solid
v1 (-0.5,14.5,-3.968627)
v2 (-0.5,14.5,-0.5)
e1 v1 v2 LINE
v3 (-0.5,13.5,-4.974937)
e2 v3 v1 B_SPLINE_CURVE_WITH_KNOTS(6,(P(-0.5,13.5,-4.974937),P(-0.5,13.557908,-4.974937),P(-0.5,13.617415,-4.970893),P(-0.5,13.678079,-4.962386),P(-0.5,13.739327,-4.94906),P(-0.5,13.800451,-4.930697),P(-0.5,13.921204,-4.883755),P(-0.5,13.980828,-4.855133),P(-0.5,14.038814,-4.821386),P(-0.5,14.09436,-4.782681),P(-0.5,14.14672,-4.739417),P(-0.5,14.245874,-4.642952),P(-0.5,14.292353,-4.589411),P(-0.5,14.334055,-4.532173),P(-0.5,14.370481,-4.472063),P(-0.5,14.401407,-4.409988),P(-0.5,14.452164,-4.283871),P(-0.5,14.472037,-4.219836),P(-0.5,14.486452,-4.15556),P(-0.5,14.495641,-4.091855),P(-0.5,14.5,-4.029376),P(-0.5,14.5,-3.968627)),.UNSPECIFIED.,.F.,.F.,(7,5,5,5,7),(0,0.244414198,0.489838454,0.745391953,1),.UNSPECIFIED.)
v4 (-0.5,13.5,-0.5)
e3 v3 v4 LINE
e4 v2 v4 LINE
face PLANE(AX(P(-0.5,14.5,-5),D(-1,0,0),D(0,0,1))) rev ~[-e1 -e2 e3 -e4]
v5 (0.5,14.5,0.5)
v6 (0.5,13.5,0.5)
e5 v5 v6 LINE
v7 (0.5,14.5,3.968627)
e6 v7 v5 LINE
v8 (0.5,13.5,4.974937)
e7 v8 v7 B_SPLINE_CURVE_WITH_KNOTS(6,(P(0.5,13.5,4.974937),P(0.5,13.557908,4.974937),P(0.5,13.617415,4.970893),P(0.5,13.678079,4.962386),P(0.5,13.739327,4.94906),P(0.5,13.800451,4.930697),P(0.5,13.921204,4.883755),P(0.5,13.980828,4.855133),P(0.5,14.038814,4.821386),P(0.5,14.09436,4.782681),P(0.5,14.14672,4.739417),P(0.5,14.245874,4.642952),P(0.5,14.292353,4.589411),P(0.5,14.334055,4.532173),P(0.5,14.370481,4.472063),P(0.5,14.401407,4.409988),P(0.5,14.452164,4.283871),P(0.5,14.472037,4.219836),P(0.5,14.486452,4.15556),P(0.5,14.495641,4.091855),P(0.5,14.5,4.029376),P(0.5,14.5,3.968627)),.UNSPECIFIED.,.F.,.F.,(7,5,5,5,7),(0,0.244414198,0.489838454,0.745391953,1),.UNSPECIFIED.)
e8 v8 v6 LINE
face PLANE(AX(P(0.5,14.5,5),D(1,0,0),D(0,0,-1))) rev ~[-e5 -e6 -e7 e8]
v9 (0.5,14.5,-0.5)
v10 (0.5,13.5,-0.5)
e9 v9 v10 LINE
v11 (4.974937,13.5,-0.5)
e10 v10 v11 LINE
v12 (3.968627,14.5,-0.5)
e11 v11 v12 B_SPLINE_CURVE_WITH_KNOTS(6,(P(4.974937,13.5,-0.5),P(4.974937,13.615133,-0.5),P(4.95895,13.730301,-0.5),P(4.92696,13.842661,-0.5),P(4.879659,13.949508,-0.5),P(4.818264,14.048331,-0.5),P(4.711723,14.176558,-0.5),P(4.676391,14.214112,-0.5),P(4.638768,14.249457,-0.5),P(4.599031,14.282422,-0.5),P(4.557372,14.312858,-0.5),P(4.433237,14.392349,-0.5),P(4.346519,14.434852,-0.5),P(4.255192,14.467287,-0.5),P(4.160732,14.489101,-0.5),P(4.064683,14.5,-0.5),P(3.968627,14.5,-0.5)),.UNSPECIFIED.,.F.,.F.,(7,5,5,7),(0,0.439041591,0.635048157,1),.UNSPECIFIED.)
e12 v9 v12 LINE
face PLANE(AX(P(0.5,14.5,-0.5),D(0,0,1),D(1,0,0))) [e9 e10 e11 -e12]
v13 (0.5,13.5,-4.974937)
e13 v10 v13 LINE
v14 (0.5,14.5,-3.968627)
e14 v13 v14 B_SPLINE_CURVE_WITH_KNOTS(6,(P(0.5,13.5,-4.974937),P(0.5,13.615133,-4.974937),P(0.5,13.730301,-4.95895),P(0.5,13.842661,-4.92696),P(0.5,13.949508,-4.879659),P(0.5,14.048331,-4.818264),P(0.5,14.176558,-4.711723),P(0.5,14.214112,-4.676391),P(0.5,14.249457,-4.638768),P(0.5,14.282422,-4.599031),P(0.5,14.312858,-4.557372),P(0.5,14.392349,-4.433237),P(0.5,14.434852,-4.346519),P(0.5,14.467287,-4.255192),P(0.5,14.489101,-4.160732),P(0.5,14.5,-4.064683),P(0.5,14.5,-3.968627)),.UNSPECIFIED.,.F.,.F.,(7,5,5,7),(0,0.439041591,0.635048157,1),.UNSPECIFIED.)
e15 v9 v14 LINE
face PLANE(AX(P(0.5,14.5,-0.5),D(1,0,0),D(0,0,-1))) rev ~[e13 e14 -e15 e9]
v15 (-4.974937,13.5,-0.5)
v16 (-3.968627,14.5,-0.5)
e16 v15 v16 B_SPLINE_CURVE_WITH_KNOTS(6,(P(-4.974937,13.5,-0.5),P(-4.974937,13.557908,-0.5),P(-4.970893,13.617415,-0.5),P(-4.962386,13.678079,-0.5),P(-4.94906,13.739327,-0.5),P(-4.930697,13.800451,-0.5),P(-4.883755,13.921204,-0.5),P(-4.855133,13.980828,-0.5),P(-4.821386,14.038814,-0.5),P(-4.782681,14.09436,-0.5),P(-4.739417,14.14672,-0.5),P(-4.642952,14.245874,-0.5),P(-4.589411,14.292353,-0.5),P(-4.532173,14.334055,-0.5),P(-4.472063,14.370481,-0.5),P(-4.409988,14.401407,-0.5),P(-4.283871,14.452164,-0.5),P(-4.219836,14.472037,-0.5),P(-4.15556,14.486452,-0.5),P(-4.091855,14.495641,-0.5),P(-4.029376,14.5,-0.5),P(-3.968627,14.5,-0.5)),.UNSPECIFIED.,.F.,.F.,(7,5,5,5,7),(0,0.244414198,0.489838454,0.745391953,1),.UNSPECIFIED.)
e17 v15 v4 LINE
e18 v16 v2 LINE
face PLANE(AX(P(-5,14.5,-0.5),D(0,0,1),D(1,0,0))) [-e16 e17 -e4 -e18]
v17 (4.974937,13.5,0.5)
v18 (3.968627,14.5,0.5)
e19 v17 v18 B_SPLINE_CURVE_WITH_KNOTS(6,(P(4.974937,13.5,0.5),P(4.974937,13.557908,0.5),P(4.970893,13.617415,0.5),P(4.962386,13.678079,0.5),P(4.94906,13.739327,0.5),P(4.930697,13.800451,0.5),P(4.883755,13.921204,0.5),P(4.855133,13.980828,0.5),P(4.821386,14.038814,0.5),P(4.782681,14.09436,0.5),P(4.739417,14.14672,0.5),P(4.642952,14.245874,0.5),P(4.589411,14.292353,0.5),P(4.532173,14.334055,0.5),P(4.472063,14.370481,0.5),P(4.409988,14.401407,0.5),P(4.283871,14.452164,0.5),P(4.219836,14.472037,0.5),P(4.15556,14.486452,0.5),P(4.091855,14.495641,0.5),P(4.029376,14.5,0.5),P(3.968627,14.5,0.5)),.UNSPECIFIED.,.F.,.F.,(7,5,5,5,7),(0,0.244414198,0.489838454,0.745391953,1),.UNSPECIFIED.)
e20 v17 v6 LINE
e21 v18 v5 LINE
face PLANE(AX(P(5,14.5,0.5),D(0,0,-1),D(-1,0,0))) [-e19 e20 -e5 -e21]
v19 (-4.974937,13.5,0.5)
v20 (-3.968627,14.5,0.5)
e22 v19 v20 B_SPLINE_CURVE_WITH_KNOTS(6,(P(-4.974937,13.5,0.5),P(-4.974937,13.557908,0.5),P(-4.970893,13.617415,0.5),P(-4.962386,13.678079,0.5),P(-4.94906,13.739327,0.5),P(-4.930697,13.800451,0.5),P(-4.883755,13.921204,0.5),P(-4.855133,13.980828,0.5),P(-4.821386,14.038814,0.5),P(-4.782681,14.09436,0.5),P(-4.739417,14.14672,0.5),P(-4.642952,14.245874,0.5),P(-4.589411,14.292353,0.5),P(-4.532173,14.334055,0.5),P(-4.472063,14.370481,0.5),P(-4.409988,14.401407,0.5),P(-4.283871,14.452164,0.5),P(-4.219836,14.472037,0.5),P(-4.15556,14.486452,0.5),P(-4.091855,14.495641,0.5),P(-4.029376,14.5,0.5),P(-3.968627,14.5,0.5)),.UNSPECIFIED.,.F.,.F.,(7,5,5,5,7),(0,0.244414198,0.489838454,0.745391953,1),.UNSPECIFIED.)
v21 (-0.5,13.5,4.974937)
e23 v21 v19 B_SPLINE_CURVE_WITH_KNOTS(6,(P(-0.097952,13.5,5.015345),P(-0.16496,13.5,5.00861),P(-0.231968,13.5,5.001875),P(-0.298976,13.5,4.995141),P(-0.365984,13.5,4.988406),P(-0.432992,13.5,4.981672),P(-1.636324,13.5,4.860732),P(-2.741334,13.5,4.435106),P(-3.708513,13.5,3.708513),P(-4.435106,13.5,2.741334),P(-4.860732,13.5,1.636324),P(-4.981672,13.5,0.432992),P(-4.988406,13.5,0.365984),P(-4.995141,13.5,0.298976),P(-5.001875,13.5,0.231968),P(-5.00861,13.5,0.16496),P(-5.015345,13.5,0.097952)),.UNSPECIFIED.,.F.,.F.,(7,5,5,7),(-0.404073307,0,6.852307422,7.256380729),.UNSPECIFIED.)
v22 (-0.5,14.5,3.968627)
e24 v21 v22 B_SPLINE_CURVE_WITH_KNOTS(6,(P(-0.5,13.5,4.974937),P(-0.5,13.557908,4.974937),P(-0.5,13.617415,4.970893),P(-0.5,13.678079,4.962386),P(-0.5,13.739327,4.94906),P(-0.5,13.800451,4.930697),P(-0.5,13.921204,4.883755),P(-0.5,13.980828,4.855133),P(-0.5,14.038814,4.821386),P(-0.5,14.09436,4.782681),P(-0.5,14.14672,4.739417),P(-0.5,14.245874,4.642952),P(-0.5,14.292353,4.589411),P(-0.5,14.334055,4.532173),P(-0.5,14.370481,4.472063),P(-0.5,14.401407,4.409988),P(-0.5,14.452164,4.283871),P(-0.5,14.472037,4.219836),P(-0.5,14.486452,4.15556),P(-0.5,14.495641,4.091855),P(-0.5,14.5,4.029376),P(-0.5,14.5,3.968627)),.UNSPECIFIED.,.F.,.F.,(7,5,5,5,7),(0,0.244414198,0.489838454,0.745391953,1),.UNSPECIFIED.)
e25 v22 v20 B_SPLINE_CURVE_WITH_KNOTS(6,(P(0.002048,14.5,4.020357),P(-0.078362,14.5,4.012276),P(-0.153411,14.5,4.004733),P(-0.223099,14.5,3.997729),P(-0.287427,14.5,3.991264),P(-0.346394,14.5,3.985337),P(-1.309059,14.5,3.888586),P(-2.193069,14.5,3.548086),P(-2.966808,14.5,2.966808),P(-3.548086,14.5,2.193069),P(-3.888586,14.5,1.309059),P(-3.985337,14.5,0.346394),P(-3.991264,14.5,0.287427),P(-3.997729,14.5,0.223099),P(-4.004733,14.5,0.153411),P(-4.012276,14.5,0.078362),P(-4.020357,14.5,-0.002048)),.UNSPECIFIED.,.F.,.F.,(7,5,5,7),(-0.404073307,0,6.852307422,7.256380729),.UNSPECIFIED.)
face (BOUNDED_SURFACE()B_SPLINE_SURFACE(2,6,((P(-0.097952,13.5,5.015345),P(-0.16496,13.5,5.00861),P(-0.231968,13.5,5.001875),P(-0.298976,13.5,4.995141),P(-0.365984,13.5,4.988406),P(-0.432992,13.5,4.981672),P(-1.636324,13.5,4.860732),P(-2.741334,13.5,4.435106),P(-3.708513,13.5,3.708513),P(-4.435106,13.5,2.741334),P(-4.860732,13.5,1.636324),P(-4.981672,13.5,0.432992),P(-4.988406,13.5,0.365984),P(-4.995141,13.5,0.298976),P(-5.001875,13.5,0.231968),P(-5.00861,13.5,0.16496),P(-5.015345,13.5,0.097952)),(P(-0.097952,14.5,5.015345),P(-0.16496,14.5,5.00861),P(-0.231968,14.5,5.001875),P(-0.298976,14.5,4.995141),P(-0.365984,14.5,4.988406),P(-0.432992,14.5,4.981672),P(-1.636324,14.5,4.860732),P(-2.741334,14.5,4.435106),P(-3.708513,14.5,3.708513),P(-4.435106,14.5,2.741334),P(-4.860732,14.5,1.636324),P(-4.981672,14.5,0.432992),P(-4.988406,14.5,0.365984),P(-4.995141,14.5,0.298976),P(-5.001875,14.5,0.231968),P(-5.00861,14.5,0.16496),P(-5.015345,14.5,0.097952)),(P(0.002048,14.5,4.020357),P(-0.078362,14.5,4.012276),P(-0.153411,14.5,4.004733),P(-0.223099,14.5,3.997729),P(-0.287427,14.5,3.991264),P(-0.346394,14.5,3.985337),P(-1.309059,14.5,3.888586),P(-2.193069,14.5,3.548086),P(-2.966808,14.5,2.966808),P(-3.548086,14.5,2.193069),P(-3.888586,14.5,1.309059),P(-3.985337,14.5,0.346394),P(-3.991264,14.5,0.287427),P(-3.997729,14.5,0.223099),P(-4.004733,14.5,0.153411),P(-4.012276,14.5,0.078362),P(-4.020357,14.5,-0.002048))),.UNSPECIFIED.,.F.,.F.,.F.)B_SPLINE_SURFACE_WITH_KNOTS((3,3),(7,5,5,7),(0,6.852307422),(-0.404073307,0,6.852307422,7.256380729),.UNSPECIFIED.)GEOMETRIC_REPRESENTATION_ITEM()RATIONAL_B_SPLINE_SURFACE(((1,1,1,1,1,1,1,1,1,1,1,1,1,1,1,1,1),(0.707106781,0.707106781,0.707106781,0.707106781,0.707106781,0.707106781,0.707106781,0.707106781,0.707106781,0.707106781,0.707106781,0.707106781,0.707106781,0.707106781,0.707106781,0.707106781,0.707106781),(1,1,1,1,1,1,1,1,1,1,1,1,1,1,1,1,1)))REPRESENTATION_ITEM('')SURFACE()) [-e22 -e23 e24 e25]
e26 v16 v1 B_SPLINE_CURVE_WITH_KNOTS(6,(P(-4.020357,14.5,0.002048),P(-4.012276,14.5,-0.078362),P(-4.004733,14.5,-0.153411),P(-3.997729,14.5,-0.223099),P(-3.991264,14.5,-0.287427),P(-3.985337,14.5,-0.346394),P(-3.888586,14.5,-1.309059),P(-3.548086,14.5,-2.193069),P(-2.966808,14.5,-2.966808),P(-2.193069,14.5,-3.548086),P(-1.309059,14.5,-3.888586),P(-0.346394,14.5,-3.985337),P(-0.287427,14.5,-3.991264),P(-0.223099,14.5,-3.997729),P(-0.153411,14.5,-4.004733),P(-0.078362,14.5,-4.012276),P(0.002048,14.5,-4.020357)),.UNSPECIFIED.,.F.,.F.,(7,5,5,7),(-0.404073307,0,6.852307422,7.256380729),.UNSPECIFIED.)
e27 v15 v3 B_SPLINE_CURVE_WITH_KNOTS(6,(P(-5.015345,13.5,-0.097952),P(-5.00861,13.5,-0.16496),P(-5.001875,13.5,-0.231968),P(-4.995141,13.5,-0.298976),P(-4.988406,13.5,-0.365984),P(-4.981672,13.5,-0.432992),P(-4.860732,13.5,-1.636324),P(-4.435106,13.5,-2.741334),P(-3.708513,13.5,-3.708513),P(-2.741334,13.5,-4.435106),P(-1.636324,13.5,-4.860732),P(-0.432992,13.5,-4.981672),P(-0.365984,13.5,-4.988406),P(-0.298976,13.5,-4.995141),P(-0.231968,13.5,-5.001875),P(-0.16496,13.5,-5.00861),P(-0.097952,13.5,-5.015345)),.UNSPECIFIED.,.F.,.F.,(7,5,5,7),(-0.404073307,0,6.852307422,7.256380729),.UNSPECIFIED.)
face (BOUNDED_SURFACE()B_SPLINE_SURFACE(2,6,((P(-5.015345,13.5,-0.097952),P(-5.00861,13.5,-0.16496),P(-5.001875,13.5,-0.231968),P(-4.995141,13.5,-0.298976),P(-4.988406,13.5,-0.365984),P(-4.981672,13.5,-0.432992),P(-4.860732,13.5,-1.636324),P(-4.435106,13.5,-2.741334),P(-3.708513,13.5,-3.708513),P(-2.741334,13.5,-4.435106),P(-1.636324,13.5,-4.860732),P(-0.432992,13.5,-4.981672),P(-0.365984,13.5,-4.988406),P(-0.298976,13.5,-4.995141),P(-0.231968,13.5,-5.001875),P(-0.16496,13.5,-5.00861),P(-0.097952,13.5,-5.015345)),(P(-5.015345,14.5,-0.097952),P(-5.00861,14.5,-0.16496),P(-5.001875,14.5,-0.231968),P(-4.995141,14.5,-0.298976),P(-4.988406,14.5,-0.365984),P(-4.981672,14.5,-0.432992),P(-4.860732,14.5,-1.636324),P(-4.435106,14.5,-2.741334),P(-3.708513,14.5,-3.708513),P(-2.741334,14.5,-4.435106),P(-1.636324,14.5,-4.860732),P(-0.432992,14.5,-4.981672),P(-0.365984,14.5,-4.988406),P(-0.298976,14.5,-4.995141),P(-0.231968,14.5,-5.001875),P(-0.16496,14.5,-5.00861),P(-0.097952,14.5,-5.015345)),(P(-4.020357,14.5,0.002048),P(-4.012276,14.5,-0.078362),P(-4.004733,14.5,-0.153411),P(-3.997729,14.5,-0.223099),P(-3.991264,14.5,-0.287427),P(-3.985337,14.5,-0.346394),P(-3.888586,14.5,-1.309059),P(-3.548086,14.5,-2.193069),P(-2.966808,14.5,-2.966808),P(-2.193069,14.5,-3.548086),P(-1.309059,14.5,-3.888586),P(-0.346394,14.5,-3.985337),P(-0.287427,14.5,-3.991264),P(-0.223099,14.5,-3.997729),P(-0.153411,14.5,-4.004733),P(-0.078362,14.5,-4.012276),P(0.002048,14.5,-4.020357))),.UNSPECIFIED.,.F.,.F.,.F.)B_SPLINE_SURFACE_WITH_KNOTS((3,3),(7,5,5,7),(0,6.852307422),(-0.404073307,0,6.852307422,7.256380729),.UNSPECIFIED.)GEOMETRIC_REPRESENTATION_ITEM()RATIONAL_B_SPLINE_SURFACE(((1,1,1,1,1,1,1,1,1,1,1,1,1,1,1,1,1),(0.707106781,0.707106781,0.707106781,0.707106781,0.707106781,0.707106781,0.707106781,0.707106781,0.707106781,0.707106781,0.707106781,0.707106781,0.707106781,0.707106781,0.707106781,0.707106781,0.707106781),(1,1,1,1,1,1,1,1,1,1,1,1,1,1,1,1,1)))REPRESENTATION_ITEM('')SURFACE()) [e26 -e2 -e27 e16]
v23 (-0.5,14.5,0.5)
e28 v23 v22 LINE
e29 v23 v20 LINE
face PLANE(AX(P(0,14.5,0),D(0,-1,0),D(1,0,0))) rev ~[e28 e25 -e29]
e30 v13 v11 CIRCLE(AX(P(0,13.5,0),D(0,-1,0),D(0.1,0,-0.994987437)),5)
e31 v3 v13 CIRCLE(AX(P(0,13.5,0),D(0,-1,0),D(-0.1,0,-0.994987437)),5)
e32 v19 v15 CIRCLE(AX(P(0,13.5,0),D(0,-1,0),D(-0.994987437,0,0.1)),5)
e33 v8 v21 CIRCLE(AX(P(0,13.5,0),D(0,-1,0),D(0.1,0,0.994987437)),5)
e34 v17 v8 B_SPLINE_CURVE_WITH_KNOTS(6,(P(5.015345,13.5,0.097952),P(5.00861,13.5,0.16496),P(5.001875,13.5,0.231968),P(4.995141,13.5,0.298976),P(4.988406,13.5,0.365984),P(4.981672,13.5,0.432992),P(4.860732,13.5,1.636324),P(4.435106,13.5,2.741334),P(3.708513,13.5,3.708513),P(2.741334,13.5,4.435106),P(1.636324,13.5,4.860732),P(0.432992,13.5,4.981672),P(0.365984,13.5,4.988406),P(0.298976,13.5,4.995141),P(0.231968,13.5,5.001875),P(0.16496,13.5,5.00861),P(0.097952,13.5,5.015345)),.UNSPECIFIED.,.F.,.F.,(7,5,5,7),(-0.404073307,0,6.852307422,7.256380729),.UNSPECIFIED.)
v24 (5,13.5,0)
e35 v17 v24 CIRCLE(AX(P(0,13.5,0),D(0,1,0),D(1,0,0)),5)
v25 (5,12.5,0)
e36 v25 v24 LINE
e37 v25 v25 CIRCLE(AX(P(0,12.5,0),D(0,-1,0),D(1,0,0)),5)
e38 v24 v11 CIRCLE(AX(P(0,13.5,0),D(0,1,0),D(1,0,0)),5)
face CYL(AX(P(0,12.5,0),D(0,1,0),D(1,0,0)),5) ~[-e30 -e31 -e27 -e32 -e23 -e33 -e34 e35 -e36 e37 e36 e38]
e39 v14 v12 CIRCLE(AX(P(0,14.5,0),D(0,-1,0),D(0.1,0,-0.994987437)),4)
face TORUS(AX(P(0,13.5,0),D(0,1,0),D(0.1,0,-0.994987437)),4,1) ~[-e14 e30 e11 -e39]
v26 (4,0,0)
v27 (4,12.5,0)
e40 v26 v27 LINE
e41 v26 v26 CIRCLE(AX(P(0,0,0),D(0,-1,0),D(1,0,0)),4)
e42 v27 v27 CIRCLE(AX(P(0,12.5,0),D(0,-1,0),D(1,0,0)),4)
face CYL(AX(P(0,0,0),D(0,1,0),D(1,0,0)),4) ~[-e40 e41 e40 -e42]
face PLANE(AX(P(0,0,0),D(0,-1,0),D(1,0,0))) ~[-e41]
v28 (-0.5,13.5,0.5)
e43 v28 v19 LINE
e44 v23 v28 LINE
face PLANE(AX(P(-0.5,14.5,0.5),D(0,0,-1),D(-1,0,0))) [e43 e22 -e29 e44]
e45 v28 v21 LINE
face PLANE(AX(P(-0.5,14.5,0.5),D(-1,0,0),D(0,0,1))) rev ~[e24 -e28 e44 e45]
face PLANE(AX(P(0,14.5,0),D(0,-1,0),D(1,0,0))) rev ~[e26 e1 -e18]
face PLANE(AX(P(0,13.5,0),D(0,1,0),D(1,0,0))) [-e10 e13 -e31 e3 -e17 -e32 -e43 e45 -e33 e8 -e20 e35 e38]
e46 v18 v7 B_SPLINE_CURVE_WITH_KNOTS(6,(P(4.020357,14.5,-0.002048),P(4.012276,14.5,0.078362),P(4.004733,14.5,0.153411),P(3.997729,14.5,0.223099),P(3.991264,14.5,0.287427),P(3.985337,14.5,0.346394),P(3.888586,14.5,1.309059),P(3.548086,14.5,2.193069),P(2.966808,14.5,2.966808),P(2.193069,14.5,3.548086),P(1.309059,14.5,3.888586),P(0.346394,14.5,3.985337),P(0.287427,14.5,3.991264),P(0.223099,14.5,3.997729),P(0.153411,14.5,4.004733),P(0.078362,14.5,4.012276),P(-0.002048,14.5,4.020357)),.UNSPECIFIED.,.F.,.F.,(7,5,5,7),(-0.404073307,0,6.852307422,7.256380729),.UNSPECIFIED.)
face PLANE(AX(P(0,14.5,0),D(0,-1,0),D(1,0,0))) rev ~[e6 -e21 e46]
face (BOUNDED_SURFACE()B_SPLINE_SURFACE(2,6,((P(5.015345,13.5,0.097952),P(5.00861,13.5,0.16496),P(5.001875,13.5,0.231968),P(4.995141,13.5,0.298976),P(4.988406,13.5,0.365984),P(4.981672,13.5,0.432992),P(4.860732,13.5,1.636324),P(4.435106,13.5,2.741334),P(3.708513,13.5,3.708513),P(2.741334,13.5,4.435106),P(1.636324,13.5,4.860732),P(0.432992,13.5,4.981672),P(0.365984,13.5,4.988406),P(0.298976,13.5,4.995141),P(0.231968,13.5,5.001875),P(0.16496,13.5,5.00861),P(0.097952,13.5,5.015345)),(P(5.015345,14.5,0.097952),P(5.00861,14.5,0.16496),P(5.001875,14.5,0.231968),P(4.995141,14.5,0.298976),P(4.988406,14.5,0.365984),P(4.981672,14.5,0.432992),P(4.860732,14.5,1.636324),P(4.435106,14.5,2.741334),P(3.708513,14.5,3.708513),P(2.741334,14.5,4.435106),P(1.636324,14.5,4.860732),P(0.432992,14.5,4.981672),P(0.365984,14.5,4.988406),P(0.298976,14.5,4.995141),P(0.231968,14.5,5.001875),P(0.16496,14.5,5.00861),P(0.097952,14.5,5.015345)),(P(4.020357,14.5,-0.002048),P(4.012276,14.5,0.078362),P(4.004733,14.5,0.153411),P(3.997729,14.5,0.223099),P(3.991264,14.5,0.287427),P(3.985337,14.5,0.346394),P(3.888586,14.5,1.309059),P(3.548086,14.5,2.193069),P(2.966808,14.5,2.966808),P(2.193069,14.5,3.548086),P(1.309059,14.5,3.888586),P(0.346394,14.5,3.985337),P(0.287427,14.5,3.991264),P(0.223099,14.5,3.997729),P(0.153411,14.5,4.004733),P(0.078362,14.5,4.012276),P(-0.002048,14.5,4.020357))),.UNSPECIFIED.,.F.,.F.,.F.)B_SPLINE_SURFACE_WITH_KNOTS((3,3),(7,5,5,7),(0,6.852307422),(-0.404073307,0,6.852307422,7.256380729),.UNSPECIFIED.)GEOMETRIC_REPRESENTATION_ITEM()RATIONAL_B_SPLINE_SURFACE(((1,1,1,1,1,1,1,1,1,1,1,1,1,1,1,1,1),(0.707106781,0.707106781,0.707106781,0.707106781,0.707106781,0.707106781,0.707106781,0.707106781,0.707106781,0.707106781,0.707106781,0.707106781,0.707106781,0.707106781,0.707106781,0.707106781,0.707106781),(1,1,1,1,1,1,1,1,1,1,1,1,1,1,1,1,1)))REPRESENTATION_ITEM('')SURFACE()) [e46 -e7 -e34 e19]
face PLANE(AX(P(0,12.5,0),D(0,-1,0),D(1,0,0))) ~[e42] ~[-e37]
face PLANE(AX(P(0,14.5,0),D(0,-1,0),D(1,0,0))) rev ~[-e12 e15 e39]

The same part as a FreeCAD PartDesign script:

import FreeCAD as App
import Part
import Sketcher
from FreeCAD import Vector
Q = App.Units.Quantity


def edges_at(feature, points):
    """Names of the edges that pass closest to the given points."""
    edges = feature.Shape.Edges
    near = lambda p: min(range(len(edges)), key=lambda i: edges[i].distToShape(Part.Vertex(*p))[0])
    return sorted({f"Edge{near(p) + 1}" for p in points})


def add_polygon(sketch, points):
    """Adds a closed chain of lines whose ends are joined by coincident constraints."""
    first, n = sketch.GeometryCount, len(points)
    for a, b in zip(points, points[1:] + points[:1]):
        sketch.addGeometry(Part.LineSegment(App.Vector(*a, 0), App.Vector(*b, 0)), False)
    for i in range(n):
        sketch.addConstraint(Sketcher.Constraint("Coincident", first + i, 2, first + (i + 1) % n, 1))

doc = App.newDocument("Part")
body = doc.addObject("PartDesign::Body", "Body")

sketch1 = doc.addObject("Sketcher::SketchObject", "Sketch")
body.addObject(sketch1)
sketch1.AttachmentSupport = (doc.XY_Plane, [""])
sketch1.MapMode = "FlatFace"
add_polygon(sketch1, [(0, 0), (4, 0), (4, 12.5), (5, 12.5), (5, 14.5), (0, 14.5)])
sketch1.addConstraint(Sketcher.Constraint("Horizontal", 0))
sketch1.addConstraint(Sketcher.Constraint("Vertical", 1))
sketch1.addConstraint(Sketcher.Constraint("Horizontal", 2))
sketch1.addConstraint(Sketcher.Constraint("Vertical", 3))
sketch1.addConstraint(Sketcher.Constraint("Horizontal", 4))
sketch1.addConstraint(Sketcher.Constraint("Vertical", 5))
sketch1.addConstraint(Sketcher.Constraint("Coincident", 5, 2, -1, 1))
sketch1.addConstraint(Sketcher.Constraint("DistanceX", 0, 1, 0, 2, Q("4 mm")))
sketch1.addConstraint(Sketcher.Constraint("DistanceX", 4, 2, 4, 1, Q("5 mm")))
sketch1.addConstraint(Sketcher.Constraint("DistanceY", 3, 1, 3, 2, Q("2 mm")))
sketch1.addConstraint(Sketcher.Constraint("DistanceY", 1, 1, 1, 2, Q("12.5 mm")))
revolution = doc.addObject("PartDesign::Revolution", "Revolution")
body.addObject(revolution)
revolution.Profile = sketch1
revolution.ReferenceAxis = (sketch1, ["V_Axis"])
revolution.Angle = 360

sketch2 = doc.addObject("Sketcher::SketchObject", "Sketch001")
body.addObject(sketch2)
sketch2.AttachmentSupport = (doc.XZ_Plane, [""])
sketch2.MapMode = "FlatFace"
sketch2.AttachmentOffset = App.Placement(Vector(0, 0, -14.5), App.Rotation())
add_polygon(sketch2, [(-0.5, 0.5), (-0.5, 5), (0.5, 5), (0.5, 0.5), (5, 0.5), (5, -0.5), (0.5, -0.5), (0.5, -5), (-0.5, -5), (-0.5, -0.5), (-5, -0.5), (-5, 0.5)])
sketch2.addConstraint(Sketcher.Constraint("Vertical", 0))
sketch2.addConstraint(Sketcher.Constraint("Horizontal", 1))
sketch2.addConstraint(Sketcher.Constraint("Vertical", 2))
sketch2.addConstraint(Sketcher.Constraint("Horizontal", 3))
sketch2.addConstraint(Sketcher.Constraint("Vertical", 4))
sketch2.addConstraint(Sketcher.Constraint("Horizontal", 5))
sketch2.addConstraint(Sketcher.Constraint("Vertical", 6))
sketch2.addConstraint(Sketcher.Constraint("Horizontal", 7))
sketch2.addConstraint(Sketcher.Constraint("Vertical", 8))
sketch2.addConstraint(Sketcher.Constraint("Horizontal", 9))
sketch2.addConstraint(Sketcher.Constraint("Vertical", 10))
sketch2.addConstraint(Sketcher.Constraint("Horizontal", 11))
sketch2.addConstraint(Sketcher.Constraint("Symmetric", 0, 2, 6, 2, -1, 1))
sketch2.addConstraint(Sketcher.Constraint("Symmetric", 2, 2, 8, 2, -1, 1))
sketch2.addConstraint(Sketcher.Constraint("Symmetric", 4, 2, 10, 2, -1, 1))
sketch2.addConstraint(Sketcher.Constraint("Symmetric", 5, 2, 8, 2, -2))
sketch2.addConstraint(Sketcher.Constraint("Equal", 11, 0))
sketch2.addConstraint(Sketcher.Constraint("Equal", 7, 4))
sketch2.addConstraint(Sketcher.Constraint("DistanceX", 1, 1, 1, 2, Q("1 mm")))
sketch2.addConstraint(Sketcher.Constraint("DistanceY", -1, 1, 0, 2, Q("5 mm")))
pocket1 = doc.addObject("PartDesign::Pocket", "Pocket")
body.addObject(pocket1)
pocket1.Profile = sketch2
pocket1.Length = 1
pocket1.Reversed = True
doc.recompute()

fillet = doc.addObject("PartDesign::Fillet", "Fillet")
body.addObject(fillet)
fillet.Base = (pocket1, edges_at(pocket1, [(3.535, 14.5, -3.535)]))
fillet.Radius = 1
doc.recompute()

fillet2 = doc.addObject("PartDesign::Fillet", "Fillet001")
body.addObject(fillet2)
fillet2.Base = (fillet, edges_at(fillet, [(-3.535, 14.5, -3.535), (-3.535, 14.5, 3.535), (3.535, 14.5, 3.535)]))
fillet2.Radius = 1

doc.recompute()
